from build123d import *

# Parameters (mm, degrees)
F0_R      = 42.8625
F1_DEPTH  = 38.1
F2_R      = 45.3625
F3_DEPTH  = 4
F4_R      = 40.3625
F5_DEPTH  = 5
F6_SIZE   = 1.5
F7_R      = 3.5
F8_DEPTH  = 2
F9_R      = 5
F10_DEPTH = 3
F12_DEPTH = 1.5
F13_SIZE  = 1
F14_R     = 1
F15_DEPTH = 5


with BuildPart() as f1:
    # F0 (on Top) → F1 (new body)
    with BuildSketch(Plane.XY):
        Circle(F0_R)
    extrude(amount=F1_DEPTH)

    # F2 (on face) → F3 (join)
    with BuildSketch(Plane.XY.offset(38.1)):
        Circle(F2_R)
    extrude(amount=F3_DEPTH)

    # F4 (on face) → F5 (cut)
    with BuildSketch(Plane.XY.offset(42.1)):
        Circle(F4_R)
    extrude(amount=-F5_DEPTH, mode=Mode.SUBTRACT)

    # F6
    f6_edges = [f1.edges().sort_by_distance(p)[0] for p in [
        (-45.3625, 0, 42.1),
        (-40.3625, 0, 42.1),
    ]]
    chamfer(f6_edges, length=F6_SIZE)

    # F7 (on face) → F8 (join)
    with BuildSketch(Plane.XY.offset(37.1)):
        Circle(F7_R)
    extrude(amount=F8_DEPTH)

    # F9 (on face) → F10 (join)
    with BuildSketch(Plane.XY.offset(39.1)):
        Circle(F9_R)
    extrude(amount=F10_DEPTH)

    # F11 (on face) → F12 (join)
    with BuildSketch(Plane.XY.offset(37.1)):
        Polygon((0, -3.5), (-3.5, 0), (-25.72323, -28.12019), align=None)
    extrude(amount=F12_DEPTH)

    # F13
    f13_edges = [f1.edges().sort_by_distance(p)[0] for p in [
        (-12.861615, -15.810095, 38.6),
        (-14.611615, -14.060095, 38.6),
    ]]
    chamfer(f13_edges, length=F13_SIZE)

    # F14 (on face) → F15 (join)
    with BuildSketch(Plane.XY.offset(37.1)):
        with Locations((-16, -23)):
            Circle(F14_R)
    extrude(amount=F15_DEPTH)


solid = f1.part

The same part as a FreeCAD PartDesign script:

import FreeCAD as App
import Part
import Sketcher

V = App.Vector
Q = App.Units.Quantity


def edges_at(feature, points):
    """Names of the edges that pass closest to the given points."""
    edges = feature.Shape.Edges
    near = lambda p: min(range(len(edges)), key=lambda i: edges[i].distToShape(Part.Vertex(*p))[0])
    return sorted({f"Edge{near(p) + 1}" for p in points})

doc = App.newDocument("Part")
body = doc.addObject("PartDesign::Body", "Body")

# Sketch on XY plane
sketch1 = body.newObject("Sketcher::SketchObject", "Sketch")
sketch1.AttachmentSupport = (doc.getObject("XY_Plane"), [""])
sketch1.MapMode = "FlatFace"
sketch1.addGeometry(Part.Circle(V(0, 0, 0), V(0, 0, 1), 43), False)
sketch1.addConstraint([
    Sketcher.Constraint("Coincident", 0, 3, -1, 1),
    Sketcher.Constraint("Diameter", 0, 85.725),
])
pad1 = body.newObject("PartDesign::Pad", "Pad")
pad1.Profile = sketch1
pad1.Length = 38.1

# Sketch on XY plane
sketch2 = body.newObject("Sketcher::SketchObject", "Sketch001")
sketch2.AttachmentSupport = (doc.getObject("XY_Plane"), [""])
sketch2.MapMode = "FlatFace"
sketch2.AttachmentOffset = App.Placement(V(0, 0, 38.1), App.Rotation())
sketch2.addGeometry(Part.Circle(V(0, 0, 0), V(0, 0, 1), 45), False)
sketch2.addConstraint([
    Sketcher.Constraint("Coincident", 0, 3, -1, 1),
    Sketcher.Constraint("Diameter", 0, 90.725),
])
pad2 = body.newObject("PartDesign::Pad", "Pad001")
pad2.Profile = sketch2
pad2.Length = 4

# Sketch on XY plane
sketch3 = body.newObject("Sketcher::SketchObject", "Sketch002")
sketch3.AttachmentSupport = (doc.getObject("XY_Plane"), [""])
sketch3.MapMode = "FlatFace"
sketch3.AttachmentOffset = App.Placement(V(0, 0, 42.1), App.Rotation())
sketch3.addGeometry(Part.Circle(V(0, 0, 0), V(0, 0, 1), 40), False)
sketch3.addConstraint([
    Sketcher.Constraint("Coincident", 0, 3, -1, 1),
    Sketcher.Constraint("Diameter", 0, 80.725),
])
pocket1 = body.newObject("PartDesign::Pocket", "Pocket")
pocket1.Profile = sketch3
pocket1.Length = 5
doc.recompute()

chamfer = body.newObject("PartDesign::Chamfer", "Chamfer")
chamfer.Base = (pocket1, edges_at(pocket1, [(-45.362, 0, 42.1), (-40.362, 0, 42.1)]))
chamfer.Size = 1.5

# Sketch on XY plane
sketch4 = body.newObject("Sketcher::SketchObject", "Sketch003")
sketch4.AttachmentSupport = (doc.getObject("XY_Plane"), [""])
sketch4.MapMode = "FlatFace"
sketch4.AttachmentOffset = App.Placement(V(0, 0, 37.1), App.Rotation())
sketch4.addGeometry(Part.Circle(V(0, 0, 0), V(0, 0, 1), 3.5), False)
sketch4.addConstraint([
    Sketcher.Constraint("Coincident", 0, 3, -1, 1),
    Sketcher.Constraint("Diameter", 0, 7.0),
])
pad3 = body.newObject("PartDesign::Pad", "Pad002")
pad3.Profile = sketch4
pad3.Length = 2

# Sketch on XY plane
sketch5 = body.newObject("Sketcher::SketchObject", "Sketch004")
sketch5.AttachmentSupport = (doc.getObject("XY_Plane"), [""])
sketch5.MapMode = "FlatFace"
sketch5.AttachmentOffset = App.Placement(V(0, 0, 39.1), App.Rotation())
sketch5.addGeometry(Part.Circle(V(0, 0, 0), V(0, 0, 1), 5), False)
sketch5.addConstraint([
    Sketcher.Constraint("Coincident", 0, 3, -1, 1),
    Sketcher.Constraint("Diameter", 0, 10.0),
])
pad4 = body.newObject("PartDesign::Pad", "Pad003")
pad4.Profile = sketch5
pad4.Length = 3

# Sketch on XY plane
sketch6 = body.newObject("Sketcher::SketchObject", "Sketch005")
sketch6.AttachmentSupport = (doc.getObject("XY_Plane"), [""])
sketch6.MapMode = "FlatFace"
sketch6.AttachmentOffset = App.Placement(V(0, 0, 37.1), App.Rotation())
sketch6.addGeometry([
    Part.LineSegment(V(0, -3.5, 0), V(-3.5, 0, 0)),
    Part.LineSegment(V(-3.5, 0, 0), V(-25.7, -28.1, 0)),
    Part.LineSegment(V(-25.7, -28.1, 0), V(0, -3.5, 0)),
], False)
sketch6.addConstraint([
    Sketcher.Constraint("Coincident", 0, 2, 1, 1),
    Sketcher.Constraint("Coincident", 1, 2, 2, 1),
    Sketcher.Constraint("Coincident", 2, 2, 0, 1),
    Sketcher.Constraint("PointOnObject", 0, 2, -1),
    Sketcher.Constraint("PointOnObject", 2, 2, -2),
    Sketcher.Constraint("Angle", 0, Q("135 deg")),
    Sketcher.Constraint("DistanceX", 0, 2, -1, 1, 3.5),
    Sketcher.Constraint("DistanceX", 1, 2, -1, 1, 25.72323),
    Sketcher.Constraint("DistanceY", 1, 2, -1, 1, 28.12019),
])
pad5 = body.newObject("PartDesign::Pad", "Pad004")
pad5.Profile = sketch6
pad5.Length = 1.5
doc.recompute()

chamfer2 = body.newObject("PartDesign::Chamfer", "Chamfer001")
chamfer2.Base = (pad5, edges_at(pad5, [(-12.862, -15.81, 38.6), (-14.612, -14.06, 38.6)]))
chamfer2.Size = 1

# Sketch on XY plane
sketch7 = body.newObject("Sketcher::SketchObject", "Sketch006")
sketch7.AttachmentSupport = (doc.getObject("XY_Plane"), [""])
sketch7.MapMode = "FlatFace"
sketch7.AttachmentOffset = App.Placement(V(0, 0, 37.1), App.Rotation())
sketch7.addGeometry(Part.Circle(V(-16, -23, 0), V(0, 0, 1), 1), False)
sketch7.addConstraint([
    Sketcher.Constraint("Diameter", 0, 2.0),
    Sketcher.Constraint("DistanceX", 0, 3, -1, 1, 16.0),
    Sketcher.Constraint("DistanceY", 0, 3, -1, 1, 23.0),
])
pad6 = body.newObject("PartDesign::Pad", "Pad005")
pad6.Profile = sketch7
pad6.Length = 5

doc.recompute()
